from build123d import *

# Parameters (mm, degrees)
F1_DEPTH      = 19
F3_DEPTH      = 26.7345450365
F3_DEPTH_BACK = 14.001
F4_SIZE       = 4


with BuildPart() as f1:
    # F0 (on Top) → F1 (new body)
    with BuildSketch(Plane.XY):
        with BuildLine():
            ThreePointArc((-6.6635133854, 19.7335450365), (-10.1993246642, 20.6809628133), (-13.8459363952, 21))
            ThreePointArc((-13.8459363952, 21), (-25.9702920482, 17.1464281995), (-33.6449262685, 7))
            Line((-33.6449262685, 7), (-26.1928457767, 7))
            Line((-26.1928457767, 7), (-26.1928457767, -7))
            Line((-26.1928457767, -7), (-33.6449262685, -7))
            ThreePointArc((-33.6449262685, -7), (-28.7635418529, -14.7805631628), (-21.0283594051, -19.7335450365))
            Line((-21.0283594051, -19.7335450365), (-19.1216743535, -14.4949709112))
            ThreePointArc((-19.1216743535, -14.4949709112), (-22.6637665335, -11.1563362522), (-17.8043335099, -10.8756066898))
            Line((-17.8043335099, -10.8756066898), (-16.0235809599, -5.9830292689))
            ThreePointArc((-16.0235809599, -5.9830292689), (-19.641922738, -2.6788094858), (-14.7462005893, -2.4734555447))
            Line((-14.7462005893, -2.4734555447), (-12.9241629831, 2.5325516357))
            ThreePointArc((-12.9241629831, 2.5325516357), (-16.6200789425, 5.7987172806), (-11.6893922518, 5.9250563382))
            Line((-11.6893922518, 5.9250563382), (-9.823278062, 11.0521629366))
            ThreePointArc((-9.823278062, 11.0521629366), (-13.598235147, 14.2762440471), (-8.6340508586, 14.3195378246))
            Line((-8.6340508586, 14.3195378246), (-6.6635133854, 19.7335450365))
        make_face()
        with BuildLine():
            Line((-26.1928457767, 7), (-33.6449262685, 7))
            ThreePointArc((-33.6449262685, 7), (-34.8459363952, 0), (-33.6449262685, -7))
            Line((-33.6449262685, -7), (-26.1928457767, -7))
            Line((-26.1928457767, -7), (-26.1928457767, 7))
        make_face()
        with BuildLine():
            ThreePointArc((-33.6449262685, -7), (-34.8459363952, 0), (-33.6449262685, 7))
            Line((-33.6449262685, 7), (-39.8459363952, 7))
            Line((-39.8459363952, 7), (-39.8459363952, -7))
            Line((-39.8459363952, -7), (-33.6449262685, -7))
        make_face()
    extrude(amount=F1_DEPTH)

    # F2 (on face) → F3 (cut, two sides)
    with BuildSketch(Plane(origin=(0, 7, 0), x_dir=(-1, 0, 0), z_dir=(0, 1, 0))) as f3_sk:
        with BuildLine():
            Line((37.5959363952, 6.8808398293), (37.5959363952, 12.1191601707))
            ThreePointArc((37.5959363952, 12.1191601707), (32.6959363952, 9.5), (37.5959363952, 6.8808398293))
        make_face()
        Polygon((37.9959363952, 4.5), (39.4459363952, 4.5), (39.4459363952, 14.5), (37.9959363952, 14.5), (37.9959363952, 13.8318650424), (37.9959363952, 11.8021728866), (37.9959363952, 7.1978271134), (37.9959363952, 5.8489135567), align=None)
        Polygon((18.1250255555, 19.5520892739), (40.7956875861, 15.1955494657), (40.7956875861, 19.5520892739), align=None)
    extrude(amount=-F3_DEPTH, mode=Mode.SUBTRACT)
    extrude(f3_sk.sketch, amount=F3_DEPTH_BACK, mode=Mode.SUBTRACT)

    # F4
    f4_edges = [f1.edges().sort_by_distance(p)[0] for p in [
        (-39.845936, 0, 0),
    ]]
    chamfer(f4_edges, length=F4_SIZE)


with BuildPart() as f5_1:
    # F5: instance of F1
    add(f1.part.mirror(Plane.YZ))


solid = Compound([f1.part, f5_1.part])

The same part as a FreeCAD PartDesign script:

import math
import FreeCAD as App
import Part
import Sketcher

V = App.Vector


def edges_at(feature, points):
    """Names of the edges that pass closest to the given points."""
    edges = feature.Shape.Edges
    near = lambda p: min(range(len(edges)), key=lambda i: edges[i].distToShape(Part.Vertex(*p))[0])
    return sorted({f"Edge{near(p) + 1}" for p in points})

doc = App.newDocument("Part")
body = doc.addObject("PartDesign::Body", "Body")

# Sketch on XY plane
sketch1 = doc.addObject("Sketcher::SketchObject", "Sketch")
body.addObject(sketch1)
sketch1.AttachmentSupport = (doc.XY_Plane, [""])
sketch1.MapMode = "FlatFace"
sketch1.addGeometry([
    Part.ArcOfCircle(Part.Circle(V(-13.845936, 0, 0), V(0, 0, 1), 21), math.radians(70), math.radians(90)),  # 0
    Part.ArcOfCircle(Part.Circle(V(-13.845936, 0, 0), V(0, 0, 1), 21), math.radians(90), math.radians(160.528779)),  # 1
    Part.LineSegment(V(-33.644926, 7, 0), V(-39.845936, 7, 0)),  # 2
    Part.LineSegment(V(-39.845936, 7, 0), V(-39.845936, -7, 0)),  # 3
    Part.LineSegment(V(-39.845936, -7, 0), V(-33.644926, -7, 0)),  # 4
    Part.ArcOfCircle(Part.Circle(V(-13.845936, 0, 0), V(0, 0, 1), 21), math.radians(-160.528779), math.radians(-110)),  # 5
    Part.LineSegment(V(-21.028359, -19.733545, 0), V(-19.121674, -14.494971, 0)),  # 6
    Part.ArcOfCircle(Part.Circle(V(-20.173581, -12.06269, 0), V(0, 0, 1), 2.65), math.radians(26.612607), math.radians(293.387393)),  # 7
    Part.LineSegment(V(-17.804334, -10.875607, 0), V(-16.023581, -5.983029, 0)),  # 8
    Part.ArcOfCircle(Part.Circle(V(-17.151737, -3.585163, 0), V(0, 0, 1), 2.65), math.radians(24.803794), math.radians(295.196206)),  # 9
    Part.LineSegment(V(-14.746201, -2.473456, 0), V(-12.924163, 2.532552, 0)),  # 10
    Part.ArcOfCircle(Part.Circle(V(-14.129893, 4.892364, 0), V(0, 0, 1), 2.65), math.radians(22.935539), math.radians(297.064461)),  # 11
    Part.LineSegment(V(-11.689392, 5.925056, 0), V(-9.823278, 11.052163, 0)),  # 12
    Part.ArcOfCircle(Part.Circle(V(-11.10805, 13.369891, 0), V(0, 0, 1), 2.65), math.radians(20.999354), math.radians(299.000646)),  # 13
    Part.LineSegment(V(-8.634051, 14.319538, 0), V(-6.663513, 19.733545, 0)),  # 14
], False)
sketch1.addConstraint([
    Sketcher.Constraint("Coincident", 0, 2, 1, 1),
    Sketcher.Constraint("Coincident", 1, 2, 2, 1),
    Sketcher.Constraint("Coincident", 2, 2, 3, 1),
    Sketcher.Constraint("Coincident", 3, 2, 4, 1),
    Sketcher.Constraint("Coincident", 4, 2, 5, 1),
    Sketcher.Constraint("Coincident", 5, 2, 6, 1),
    Sketcher.Constraint("Coincident", 6, 2, 7, 2),
    Sketcher.Constraint("Coincident", 7, 1, 8, 1),
    Sketcher.Constraint("Coincident", 8, 2, 9, 2),
    Sketcher.Constraint("Coincident", 9, 1, 10, 1),
    Sketcher.Constraint("Coincident", 10, 2, 11, 2),
    Sketcher.Constraint("Coincident", 11, 1, 12, 1),
    Sketcher.Constraint("Coincident", 12, 2, 13, 2),
    Sketcher.Constraint("Coincident", 13, 1, 14, 1),
    Sketcher.Constraint("Coincident", 14, 2, 0, 1),
    Sketcher.Constraint("Horizontal", 2),
    Sketcher.Constraint("Vertical", 3),
    Sketcher.Constraint("Horizontal", 4),
    Sketcher.Constraint("Coincident", 1, 3, 0, 3),
    Sketcher.Constraint("Coincident", 5, 3, 0, 3),
    Sketcher.Constraint("PointOnObject", 0, 3, -1),
    Sketcher.Constraint("Radius", 0, 21.0),
    Sketcher.Constraint("Radius", 5, 21.0),
    Sketcher.Constraint("DistanceY", 3, 2, 3, 1, 14.0),
    Sketcher.Constraint("Radius", 7, 2.65),
    Sketcher.Constraint("Radius", 9, 2.65),
    Sketcher.Constraint("Radius", 11, 2.65),
    Sketcher.Constraint("Radius", 13, 2.65),
    Sketcher.Constraint("DistanceY", -1, 1, 1, 2, 7.0),
    Sketcher.Constraint("DistanceX", 2, 2, 0, 3, 26.0),
    Sketcher.Constraint("DistanceX", 13, 3, 13, 1, 2.473999),
    Sketcher.Constraint("DistanceX", 9, 1, -1, 1, 14.746201),
    Sketcher.Constraint("DistanceX", 9, 3, 1, 3, 3.305801),
    Sketcher.Constraint("DistanceX", 11, 3, 11, 1, 2.440501),
    Sketcher.Constraint("DistanceY", 11, 3, 12, 2, 6.159799),
    Sketcher.Constraint("Distance", 10, 5.327282),
    Sketcher.Constraint("DistanceX", 7, 3, -1, 1, 20.173581),
    Sketcher.Constraint("DistanceY", 7, 3, -1, 1, 12.06269),
    Sketcher.Constraint("DistanceX", 13, 3, -1, 1, 11.10805),
    Sketcher.Constraint("DistanceY", -1, 1, 13, 3, 13.369891),
    Sketcher.Constraint("DistanceX", 5, 2, -1, 1, 21.028359),
    Sketcher.Constraint("DistanceY", 6, 2, -1, 1, 14.494971),
    Sketcher.Constraint("DistanceX", 8, 2, -1, 1, 16.023581),
    Sketcher.Constraint("DistanceY", 8, 2, -1, 1, 5.983029),
    Sketcher.Constraint("DistanceY", -1, 1, 10, 2, 2.532552),
    Sketcher.Constraint("DistanceX", 12, 2, -1, 1, 9.823278),
    Sketcher.Constraint("DistanceY", 6, 2, 9, 3, 10.909808),
    Sketcher.Constraint("DistanceX", 6, 2, 7, 1, 1.317341),
    Sketcher.Constraint("DistanceX", 0, 2, 12, 2, 4.022658),
    Sketcher.Constraint("DistanceX", 11, 1, 14, 2, 5.025879),
])
pad1 = doc.addObject("PartDesign::Pad", "Pad")
body.addObject(pad1)
pad1.Profile = sketch1
pad1.Length = 19

# Sketch on XZ plane
sketch2 = doc.addObject("Sketcher::SketchObject", "Sketch001")
body.addObject(sketch2)
sketch2.AttachmentSupport = (doc.XZ_Plane, [""])
sketch2.MapMode = "FlatFace"
sketch2.AttachmentOffset = App.Placement(V(0, 0, -7), App.Rotation())
sketch2.addGeometry([
    Part.LineSegment(V(-37.6, 6.9, 0), V(-37.6, 12.1, 0)),  # 0
    Part.ArcOfCircle(Part.Circle(V(-35.8, 9.5, 0), V(0, 0, 1), 3.1), math.radians(-124), math.radians(124)),  # 1
    Part.LineSegment(V(-38, 4.5, 0), V(-39.4, 4.5, 0)),  # 2
    Part.LineSegment(V(-39.4, 4.5, 0), V(-39.4, 14.5, 0)),  # 3
    Part.LineSegment(V(-39.4, 14.5, 0), V(-38, 14.5, 0)),  # 4
    Part.LineSegment(V(-38, 14.5, 0), V(-38, 4.5, 0)),  # 5
    Part.LineSegment(V(-18.1, 19.6, 0), V(-40.8, 15.2, 0)),  # 6
    Part.LineSegment(V(-40.8, 15.2, 0), V(-40.8, 19.6, 0)),  # 7
    Part.LineSegment(V(-40.8, 19.6, 0), V(-18.1, 19.6, 0)),  # 8
], False)
sketch2.addConstraint([
    Sketcher.Constraint("Coincident", 0, 1, 1, 1),
    Sketcher.Constraint("Coincident", 1, 2, 0, 2),
    Sketcher.Constraint("Coincident", 2, 2, 3, 1),
    Sketcher.Constraint("Coincident", 3, 2, 4, 1),
    Sketcher.Constraint("Coincident", 4, 2, 5, 1),
    Sketcher.Constraint("Coincident", 5, 2, 2, 1),
    Sketcher.Constraint("Coincident", 6, 2, 7, 1),
    Sketcher.Constraint("Coincident", 7, 2, 8, 1),
    Sketcher.Constraint("Coincident", 8, 2, 6, 1),
    Sketcher.Constraint("Vertical", 0),
    Sketcher.Constraint("Horizontal", 2),
    Sketcher.Constraint("Vertical", 3),
    Sketcher.Constraint("Horizontal", 4),
    Sketcher.Constraint("Vertical", 5),
    Sketcher.Constraint("Vertical", 7),
    Sketcher.Constraint("Horizontal", 8),
    Sketcher.Constraint("DistanceY", 3, 1, 3, 2, 10.0),
    Sketcher.Constraint("Radius", 1, 3.15),
    Sketcher.Constraint("DistanceY", 2, 2, 1, 3, 5.0),
    Sketcher.Constraint("DistanceX", 2, 2, 2, 1, 1.45),
    Sketcher.Constraint("DistanceY", -1, 1, 1, 3, 9.5),
    Sketcher.Constraint("DistanceX", 2, 2, 1, 3, 3.6),
    Sketcher.Constraint("DistanceX", 4, 2, 1, 2, 0.4),
    Sketcher.Constraint("DistanceY", 7, 1, 7, 2, 4.35654),
    Sketcher.Constraint("DistanceX", 8, 1, 8, 2, 22.670662),
    Sketcher.Constraint("DistanceY", -1, 1, 6, 2, 15.195549),
    Sketcher.Constraint("DistanceX", 6, 2, 3, 2, 1.349751),
    Sketcher.Constraint("DistanceX", 1, 3, -1, 1, 35.845936),
])
pocket1 = doc.addObject("PartDesign::Pocket", "Pocket")
body.addObject(pocket1)
pocket1.Profile = sketch2
pocket1.Type = "ThroughAll"
pocket1.Midplane = True
doc.recompute()

chamfer = doc.addObject("PartDesign::Chamfer", "Chamfer")
body.addObject(chamfer)
chamfer.Base = (pocket1, edges_at(pocket1, [(-39.846, 0, 0)]))
chamfer.Size = 4
body2 = doc.addObject("PartDesign::Body", "Body001")
doc.recompute()

mirroring = doc.addObject("Part::Mirroring", "Mirroring")
mirroring.Source = body
mirroring.Base = V(0, 0, 0)
mirroring.Normal = V(1, 0, 0)
body2.BaseFeature = mirroring
doc.recompute()
mirroring.Visibility = False

doc.recompute()
